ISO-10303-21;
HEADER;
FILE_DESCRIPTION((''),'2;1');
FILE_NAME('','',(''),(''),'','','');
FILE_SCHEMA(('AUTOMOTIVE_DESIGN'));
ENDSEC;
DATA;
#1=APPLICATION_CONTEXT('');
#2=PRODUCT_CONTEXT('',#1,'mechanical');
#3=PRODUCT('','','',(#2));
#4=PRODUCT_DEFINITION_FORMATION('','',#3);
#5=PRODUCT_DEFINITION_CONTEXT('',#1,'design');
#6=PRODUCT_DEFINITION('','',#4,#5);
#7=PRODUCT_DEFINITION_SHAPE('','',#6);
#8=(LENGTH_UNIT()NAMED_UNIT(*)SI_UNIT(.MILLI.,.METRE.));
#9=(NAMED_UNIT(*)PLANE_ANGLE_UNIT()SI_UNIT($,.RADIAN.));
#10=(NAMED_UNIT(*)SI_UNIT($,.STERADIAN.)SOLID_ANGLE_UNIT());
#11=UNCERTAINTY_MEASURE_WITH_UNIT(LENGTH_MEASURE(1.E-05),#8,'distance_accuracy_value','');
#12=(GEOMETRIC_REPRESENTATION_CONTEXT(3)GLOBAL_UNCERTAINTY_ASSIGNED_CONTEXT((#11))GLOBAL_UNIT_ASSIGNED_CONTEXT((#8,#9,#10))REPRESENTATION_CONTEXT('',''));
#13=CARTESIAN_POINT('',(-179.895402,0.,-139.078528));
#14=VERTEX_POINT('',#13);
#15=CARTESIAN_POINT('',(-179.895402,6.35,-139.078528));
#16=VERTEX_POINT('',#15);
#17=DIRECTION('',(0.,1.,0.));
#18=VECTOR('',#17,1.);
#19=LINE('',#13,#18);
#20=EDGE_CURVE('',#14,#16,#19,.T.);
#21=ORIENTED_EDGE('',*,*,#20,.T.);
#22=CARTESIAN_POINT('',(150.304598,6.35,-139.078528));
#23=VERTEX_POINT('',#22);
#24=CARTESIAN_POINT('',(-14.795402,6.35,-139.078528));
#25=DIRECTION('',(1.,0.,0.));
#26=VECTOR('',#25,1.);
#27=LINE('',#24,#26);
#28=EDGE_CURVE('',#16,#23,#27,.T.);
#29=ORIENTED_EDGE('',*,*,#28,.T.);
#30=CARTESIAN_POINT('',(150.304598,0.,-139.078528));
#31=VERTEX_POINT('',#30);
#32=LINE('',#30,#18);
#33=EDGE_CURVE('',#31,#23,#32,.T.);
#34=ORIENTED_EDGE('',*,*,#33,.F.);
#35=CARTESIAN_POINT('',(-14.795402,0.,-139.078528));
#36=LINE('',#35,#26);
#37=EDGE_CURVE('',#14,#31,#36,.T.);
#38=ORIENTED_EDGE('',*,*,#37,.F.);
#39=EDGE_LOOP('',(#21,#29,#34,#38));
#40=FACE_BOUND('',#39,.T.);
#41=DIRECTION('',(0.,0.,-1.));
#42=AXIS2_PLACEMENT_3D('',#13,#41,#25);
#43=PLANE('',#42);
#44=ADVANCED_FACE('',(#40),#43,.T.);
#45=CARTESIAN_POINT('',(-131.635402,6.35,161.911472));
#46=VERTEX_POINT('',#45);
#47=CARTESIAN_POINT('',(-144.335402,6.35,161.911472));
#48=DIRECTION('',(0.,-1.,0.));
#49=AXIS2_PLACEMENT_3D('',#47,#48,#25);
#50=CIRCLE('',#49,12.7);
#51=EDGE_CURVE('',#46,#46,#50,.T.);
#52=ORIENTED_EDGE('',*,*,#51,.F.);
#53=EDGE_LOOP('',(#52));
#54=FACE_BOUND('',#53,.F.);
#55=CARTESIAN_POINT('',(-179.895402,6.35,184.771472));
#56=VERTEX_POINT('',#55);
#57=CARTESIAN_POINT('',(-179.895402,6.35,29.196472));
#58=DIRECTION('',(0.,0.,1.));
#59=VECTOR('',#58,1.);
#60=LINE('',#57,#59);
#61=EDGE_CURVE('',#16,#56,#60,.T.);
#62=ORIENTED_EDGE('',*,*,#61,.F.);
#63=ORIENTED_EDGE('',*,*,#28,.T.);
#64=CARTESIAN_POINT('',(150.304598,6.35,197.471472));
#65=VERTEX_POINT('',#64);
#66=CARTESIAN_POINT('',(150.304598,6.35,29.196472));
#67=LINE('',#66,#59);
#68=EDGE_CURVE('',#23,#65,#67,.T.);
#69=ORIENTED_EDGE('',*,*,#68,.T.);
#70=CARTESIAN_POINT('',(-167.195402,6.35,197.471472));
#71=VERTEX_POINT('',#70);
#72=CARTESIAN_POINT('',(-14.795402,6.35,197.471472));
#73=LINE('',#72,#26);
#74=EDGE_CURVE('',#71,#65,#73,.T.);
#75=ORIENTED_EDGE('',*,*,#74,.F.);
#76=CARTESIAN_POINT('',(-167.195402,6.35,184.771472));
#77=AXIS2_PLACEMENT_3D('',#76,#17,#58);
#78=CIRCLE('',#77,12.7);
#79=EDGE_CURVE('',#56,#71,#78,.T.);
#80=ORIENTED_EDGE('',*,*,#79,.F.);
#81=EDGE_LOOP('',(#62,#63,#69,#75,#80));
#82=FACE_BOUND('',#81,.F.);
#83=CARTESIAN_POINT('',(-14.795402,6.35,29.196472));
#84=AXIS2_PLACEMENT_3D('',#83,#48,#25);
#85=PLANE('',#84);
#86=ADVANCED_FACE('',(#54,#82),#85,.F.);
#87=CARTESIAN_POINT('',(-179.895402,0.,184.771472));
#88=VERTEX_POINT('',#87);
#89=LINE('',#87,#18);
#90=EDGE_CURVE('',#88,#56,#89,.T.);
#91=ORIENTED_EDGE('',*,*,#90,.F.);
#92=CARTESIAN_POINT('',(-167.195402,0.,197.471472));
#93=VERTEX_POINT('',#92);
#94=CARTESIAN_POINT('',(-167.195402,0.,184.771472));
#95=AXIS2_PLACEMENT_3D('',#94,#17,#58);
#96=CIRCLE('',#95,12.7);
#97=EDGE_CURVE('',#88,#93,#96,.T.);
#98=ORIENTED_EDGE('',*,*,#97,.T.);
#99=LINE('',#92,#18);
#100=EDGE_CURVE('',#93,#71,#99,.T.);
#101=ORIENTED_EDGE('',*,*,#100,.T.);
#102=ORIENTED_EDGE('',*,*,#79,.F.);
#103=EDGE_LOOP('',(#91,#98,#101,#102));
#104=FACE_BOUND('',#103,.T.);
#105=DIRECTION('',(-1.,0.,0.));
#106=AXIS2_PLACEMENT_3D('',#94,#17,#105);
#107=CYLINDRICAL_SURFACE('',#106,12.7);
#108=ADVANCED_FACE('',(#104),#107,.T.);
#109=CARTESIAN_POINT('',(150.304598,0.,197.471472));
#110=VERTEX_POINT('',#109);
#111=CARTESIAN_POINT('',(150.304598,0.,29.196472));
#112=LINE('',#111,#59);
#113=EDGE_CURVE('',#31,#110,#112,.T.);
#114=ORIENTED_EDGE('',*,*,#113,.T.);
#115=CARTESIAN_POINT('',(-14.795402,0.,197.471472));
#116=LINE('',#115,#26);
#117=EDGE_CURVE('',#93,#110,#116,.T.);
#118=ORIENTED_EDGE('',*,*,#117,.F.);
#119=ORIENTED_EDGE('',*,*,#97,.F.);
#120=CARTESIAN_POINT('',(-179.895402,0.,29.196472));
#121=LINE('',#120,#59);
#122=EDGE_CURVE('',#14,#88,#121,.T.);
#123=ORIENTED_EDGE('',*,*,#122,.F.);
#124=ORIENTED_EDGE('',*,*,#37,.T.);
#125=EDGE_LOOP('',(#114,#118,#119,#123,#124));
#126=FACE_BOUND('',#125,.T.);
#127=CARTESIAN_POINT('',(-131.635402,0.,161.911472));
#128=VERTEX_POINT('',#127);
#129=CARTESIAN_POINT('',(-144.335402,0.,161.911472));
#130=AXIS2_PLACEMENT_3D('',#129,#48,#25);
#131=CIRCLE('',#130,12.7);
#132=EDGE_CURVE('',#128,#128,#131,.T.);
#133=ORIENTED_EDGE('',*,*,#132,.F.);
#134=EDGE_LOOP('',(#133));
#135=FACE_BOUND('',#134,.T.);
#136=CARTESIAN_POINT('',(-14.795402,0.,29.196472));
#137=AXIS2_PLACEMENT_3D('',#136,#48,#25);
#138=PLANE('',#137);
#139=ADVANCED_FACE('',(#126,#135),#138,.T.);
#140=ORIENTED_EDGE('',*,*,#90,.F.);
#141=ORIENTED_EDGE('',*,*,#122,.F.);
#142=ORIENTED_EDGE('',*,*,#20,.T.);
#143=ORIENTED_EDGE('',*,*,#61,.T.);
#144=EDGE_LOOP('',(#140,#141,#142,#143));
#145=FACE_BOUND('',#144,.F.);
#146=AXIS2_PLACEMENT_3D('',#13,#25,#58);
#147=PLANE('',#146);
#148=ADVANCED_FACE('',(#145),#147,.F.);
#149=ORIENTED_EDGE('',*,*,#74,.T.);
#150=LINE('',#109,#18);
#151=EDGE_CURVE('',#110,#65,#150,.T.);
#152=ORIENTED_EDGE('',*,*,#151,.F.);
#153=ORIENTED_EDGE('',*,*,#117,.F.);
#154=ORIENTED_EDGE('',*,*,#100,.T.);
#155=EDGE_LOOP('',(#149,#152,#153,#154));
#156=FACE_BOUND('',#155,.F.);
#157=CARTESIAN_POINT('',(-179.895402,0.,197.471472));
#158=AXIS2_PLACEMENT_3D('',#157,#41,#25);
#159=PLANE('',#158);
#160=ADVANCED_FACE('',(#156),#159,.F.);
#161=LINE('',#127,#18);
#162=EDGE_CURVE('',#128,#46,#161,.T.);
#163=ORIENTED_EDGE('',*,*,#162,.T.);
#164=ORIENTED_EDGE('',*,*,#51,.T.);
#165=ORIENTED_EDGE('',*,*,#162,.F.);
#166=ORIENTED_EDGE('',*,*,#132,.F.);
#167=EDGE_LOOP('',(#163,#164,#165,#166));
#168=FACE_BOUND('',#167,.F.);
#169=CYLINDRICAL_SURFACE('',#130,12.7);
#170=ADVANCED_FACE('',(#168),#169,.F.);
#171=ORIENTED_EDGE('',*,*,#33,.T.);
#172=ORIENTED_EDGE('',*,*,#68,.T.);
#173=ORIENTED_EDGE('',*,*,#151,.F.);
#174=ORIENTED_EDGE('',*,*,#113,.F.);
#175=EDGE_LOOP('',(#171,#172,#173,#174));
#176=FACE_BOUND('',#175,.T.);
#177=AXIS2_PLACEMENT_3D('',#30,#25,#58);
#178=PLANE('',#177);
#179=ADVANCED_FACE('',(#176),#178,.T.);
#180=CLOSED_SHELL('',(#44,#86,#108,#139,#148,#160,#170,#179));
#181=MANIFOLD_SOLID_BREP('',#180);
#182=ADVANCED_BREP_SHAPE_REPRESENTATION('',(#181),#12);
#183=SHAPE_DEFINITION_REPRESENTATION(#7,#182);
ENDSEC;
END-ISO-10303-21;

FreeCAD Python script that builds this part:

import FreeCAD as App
import Part
import Sketcher

V = App.Vector
Q = App.Units.Quantity


def edges_at(feature, points):
    """Names of the edges that pass closest to the given points."""
    edges = feature.Shape.Edges
    near = lambda p: min(range(len(edges)), key=lambda i: edges[i].distToShape(Part.Vertex(*p))[0])
    return sorted({f"Edge{near(p) + 1}" for p in points})


def add_polygon(sketch, points):
    """Adds a closed chain of lines whose ends are joined by coincident constraints."""
    first, n = sketch.GeometryCount, len(points)
    for a, b in zip(points, points[1:] + points[:1]):
        sketch.addGeometry(Part.LineSegment(App.Vector(*a, 0), App.Vector(*b, 0)), False)
    for i in range(n):
        sketch.addConstraint(Sketcher.Constraint("Coincident", first + i, 2, first + (i + 1) % n, 1))

doc = App.newDocument("Part")
body = doc.addObject("PartDesign::Body", "Body")

# Sketch on XZ plane
sketch1 = body.newObject("Sketcher::SketchObject", "Sketch")
sketch1.AttachmentSupport = (doc.getObject("XZ_Plane"), [""])
sketch1.MapMode = "FlatFace"
add_polygon(sketch1, [(-180, 197), (-180, -139), (150, -139), (150, 197)])  # lines 0-3
sketch1.addConstraint(Sketcher.Constraint("Vertical", 0))
sketch1.addConstraint(Sketcher.Constraint("Horizontal", 1))
sketch1.addConstraint(Sketcher.Constraint("Vertical", 2))
sketch1.addConstraint(Sketcher.Constraint("Horizontal", 3))
sketch1.addConstraint(Sketcher.Constraint("DistanceX", 1, 1, 1, 2, Q("13 in")))
sketch1.addConstraint(Sketcher.Constraint("DistanceY", 0, 2, 0, 1, Q("13.25 in")))
sketch1.addConstraint(Sketcher.Constraint("DistanceX", 0, 2, -1, 1, 179.895402))
sketch1.addConstraint(Sketcher.Constraint("DistanceY", 0, 2, -1, 1, 139.078528))
pad1 = body.newObject("PartDesign::Pad", "Pad")
pad1.Profile = sketch1
pad1.Length = Q("0.25 in")
pad1.Reversed = True
doc.recompute()

fillet = body.newObject("PartDesign::Fillet", "Fillet")
fillet.Base = (pad1, edges_at(pad1, [(-179.895, 3.175, 197.471)]))
fillet.Radius = Q("0.5 in")

# Sketch on XZ plane
sketch2 = body.newObject("Sketcher::SketchObject", "Sketch001")
sketch2.AttachmentSupport = (doc.getObject("XZ_Plane"), [""])
sketch2.MapMode = "FlatFace"
sketch2.addGeometry(Part.Circle(V(-144, 162, 0), V(0, 0, 1), 13), False)
sketch2.addConstraint(Sketcher.Constraint("Diameter", 0, Q("1 in")))
sketch2.addConstraint(Sketcher.Constraint("DistanceX", 0, 3, -1, 1, 144.335402))
sketch2.addConstraint(Sketcher.Constraint("DistanceY", -1, 1, 0, 3, 161.911472))
pocket1 = body.newObject("PartDesign::Pocket", "Pocket")
pocket1.Profile = sketch2
pocket1.Length = Q("1 in")

doc.recompute()
